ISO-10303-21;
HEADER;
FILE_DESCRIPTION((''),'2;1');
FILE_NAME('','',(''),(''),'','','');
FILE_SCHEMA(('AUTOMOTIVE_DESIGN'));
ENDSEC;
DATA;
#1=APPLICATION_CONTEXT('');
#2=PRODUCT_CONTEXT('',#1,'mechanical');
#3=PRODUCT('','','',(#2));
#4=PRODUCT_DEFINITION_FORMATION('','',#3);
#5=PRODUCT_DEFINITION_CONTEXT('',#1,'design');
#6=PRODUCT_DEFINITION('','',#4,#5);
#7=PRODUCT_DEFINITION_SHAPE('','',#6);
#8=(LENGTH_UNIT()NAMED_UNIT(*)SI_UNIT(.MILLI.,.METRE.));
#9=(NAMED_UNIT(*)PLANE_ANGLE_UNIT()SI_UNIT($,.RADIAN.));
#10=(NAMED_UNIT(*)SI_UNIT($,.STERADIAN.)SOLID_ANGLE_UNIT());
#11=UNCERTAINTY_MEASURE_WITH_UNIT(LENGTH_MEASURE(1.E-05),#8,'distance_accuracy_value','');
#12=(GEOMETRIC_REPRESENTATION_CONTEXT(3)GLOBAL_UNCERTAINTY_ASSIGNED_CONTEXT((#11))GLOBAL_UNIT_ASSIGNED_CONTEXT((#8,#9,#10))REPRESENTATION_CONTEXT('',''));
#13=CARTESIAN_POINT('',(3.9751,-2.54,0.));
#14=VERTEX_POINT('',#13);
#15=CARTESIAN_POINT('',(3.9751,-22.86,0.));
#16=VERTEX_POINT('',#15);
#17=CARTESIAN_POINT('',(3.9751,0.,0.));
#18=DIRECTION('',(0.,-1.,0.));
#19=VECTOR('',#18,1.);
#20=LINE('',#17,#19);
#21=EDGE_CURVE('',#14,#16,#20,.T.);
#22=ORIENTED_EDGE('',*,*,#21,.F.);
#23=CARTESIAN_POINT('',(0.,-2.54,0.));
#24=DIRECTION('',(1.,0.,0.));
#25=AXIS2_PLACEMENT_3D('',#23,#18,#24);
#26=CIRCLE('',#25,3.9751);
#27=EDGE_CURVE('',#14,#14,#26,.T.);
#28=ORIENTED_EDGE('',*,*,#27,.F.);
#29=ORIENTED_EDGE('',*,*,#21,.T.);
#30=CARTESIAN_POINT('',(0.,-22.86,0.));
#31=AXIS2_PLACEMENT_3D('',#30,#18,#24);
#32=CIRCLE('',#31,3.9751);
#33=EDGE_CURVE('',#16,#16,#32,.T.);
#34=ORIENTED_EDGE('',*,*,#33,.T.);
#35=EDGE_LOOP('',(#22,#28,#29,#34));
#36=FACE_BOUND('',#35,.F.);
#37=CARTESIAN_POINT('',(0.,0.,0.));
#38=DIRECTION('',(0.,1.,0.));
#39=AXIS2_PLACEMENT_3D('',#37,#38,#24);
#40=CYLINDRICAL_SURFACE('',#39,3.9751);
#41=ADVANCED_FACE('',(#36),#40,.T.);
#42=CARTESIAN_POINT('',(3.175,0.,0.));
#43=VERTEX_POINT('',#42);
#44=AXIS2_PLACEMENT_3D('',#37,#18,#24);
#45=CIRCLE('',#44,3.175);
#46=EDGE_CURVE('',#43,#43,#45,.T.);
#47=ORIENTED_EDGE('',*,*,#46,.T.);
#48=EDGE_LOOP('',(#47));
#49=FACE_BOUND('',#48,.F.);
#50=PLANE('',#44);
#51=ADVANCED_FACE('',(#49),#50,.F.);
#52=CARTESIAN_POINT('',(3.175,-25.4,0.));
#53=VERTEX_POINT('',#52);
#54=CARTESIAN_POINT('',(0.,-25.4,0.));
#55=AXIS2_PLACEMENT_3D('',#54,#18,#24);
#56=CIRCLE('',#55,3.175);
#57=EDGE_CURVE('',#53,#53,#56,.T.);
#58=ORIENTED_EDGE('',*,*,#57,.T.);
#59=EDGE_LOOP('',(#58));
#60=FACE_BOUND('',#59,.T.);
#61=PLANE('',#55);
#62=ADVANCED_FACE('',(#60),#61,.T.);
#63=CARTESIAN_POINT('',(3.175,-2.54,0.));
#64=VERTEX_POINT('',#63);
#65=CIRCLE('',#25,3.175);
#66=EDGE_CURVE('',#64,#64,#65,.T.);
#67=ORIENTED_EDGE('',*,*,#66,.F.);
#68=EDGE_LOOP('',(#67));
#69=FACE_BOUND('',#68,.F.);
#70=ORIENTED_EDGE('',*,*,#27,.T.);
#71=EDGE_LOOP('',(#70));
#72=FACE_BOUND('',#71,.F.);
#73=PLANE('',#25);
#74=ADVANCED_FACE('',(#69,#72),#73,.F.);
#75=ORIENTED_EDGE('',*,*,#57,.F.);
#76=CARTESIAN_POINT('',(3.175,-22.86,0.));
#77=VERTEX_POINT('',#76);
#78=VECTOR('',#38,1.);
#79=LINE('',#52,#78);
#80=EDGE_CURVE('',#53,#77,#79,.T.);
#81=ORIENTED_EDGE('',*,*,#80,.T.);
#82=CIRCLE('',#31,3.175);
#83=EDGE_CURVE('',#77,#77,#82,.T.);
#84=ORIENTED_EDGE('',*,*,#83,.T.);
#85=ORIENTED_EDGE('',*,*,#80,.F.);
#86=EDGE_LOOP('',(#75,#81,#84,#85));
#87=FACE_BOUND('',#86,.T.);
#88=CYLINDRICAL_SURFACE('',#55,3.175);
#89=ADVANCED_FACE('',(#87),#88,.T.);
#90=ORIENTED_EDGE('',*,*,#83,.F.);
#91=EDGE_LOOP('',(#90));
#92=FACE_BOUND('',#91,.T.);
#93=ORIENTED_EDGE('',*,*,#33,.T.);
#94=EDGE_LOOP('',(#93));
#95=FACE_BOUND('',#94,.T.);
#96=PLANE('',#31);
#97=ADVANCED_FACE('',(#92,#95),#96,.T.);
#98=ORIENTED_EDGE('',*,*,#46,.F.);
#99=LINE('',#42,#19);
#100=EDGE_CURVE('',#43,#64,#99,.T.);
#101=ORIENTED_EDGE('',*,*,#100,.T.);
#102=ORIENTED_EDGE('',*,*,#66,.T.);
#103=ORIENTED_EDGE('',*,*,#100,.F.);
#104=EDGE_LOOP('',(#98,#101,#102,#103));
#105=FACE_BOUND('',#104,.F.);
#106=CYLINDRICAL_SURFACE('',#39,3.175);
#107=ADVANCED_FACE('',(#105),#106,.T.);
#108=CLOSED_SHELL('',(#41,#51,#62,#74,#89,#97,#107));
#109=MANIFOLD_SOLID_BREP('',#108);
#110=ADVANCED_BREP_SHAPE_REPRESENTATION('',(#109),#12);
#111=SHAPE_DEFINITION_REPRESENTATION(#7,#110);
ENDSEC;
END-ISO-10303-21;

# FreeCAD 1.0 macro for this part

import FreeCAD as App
import Part
import Sketcher
Q = App.Units.Quantity

doc = App.newDocument("Part")
body = doc.addObject("PartDesign::Body", "Body")

sketch1 = body.newObject("Sketcher::SketchObject", "Sketch")
sketch1.AttachmentSupport = (doc.getObject("XZ_Plane"), [""])
sketch1.MapMode = "FlatFace"
sketch1.addGeometry(Part.Circle(App.Vector(0, 0, 0), App.Vector(0, 0, 1), 4), False)
sketch1.addConstraint(Sketcher.Constraint("Coincident", 0, 3, -1, 1))
sketch1.addConstraint(Sketcher.Constraint("Diameter", 0, Q("0.313 in")))
pad1 = body.newObject("PartDesign::Pad", "Pad")
pad1.Profile = sketch1
pad1.Length = Q("1 in")

sketch2 = body.newObject("Sketcher::SketchObject", "Sketch001")
sketch2.AttachmentSupport = (doc.getObject("XZ_Plane"), [""])
sketch2.MapMode = "FlatFace"
sketch2.AttachmentOffset = App.Placement(App.Vector(0, 0, 1 * 25.4), App.Rotation())
sketch2.addGeometry(Part.Circle(App.Vector(0, 0, 0), App.Vector(0, 0, 1), 4), False)
sketch2.addGeometry(Part.Circle(App.Vector(0, 0, 0), App.Vector(0, 0, 1), 3.2), False)
sketch2.addConstraint(Sketcher.Constraint("Coincident", 0, 3, -1, 1))
sketch2.addConstraint(Sketcher.Constraint("Coincident", 1, 3, -1, 1))
sketch2.addConstraint(Sketcher.Constraint("Diameter", 1, Q("0.25 in")))
sketch2.addConstraint(Sketcher.Constraint("Diameter", 0, Q("0.313 in")))
pocket1 = body.newObject("PartDesign::Pocket", "Pocket")
pocket1.Profile = sketch2
pocket1.Length = Q("0.1 in")

sketch3 = body.newObject("Sketcher::SketchObject", "Sketch002")
sketch3.AttachmentSupport = (doc.getObject("XZ_Plane"), [""])
sketch3.MapMode = "FlatFace"
sketch3.addGeometry(Part.Circle(App.Vector(0, 0, 0), App.Vector(0, 0, 1), 4), False)
sketch3.addGeometry(Part.Circle(App.Vector(0, 0, 0), App.Vector(0, 0, 1), 3.2), False)
sketch3.addConstraint(Sketcher.Constraint("Coincident", 0, 3, -1, 1))
sketch3.addConstraint(Sketcher.Constraint("Coincident", 1, 3, -1, 1))
sketch3.addConstraint(Sketcher.Constraint("Diameter", 1, Q("0.25 in")))
sketch3.addConstraint(Sketcher.Constraint("Diameter", 0, Q("0.313 in")))
pocket2 = body.newObject("PartDesign::Pocket", "Pocket001")
pocket2.Profile = sketch3
pocket2.Length = Q("0.1 in")
pocket2.Reversed = True

doc.recompute()
